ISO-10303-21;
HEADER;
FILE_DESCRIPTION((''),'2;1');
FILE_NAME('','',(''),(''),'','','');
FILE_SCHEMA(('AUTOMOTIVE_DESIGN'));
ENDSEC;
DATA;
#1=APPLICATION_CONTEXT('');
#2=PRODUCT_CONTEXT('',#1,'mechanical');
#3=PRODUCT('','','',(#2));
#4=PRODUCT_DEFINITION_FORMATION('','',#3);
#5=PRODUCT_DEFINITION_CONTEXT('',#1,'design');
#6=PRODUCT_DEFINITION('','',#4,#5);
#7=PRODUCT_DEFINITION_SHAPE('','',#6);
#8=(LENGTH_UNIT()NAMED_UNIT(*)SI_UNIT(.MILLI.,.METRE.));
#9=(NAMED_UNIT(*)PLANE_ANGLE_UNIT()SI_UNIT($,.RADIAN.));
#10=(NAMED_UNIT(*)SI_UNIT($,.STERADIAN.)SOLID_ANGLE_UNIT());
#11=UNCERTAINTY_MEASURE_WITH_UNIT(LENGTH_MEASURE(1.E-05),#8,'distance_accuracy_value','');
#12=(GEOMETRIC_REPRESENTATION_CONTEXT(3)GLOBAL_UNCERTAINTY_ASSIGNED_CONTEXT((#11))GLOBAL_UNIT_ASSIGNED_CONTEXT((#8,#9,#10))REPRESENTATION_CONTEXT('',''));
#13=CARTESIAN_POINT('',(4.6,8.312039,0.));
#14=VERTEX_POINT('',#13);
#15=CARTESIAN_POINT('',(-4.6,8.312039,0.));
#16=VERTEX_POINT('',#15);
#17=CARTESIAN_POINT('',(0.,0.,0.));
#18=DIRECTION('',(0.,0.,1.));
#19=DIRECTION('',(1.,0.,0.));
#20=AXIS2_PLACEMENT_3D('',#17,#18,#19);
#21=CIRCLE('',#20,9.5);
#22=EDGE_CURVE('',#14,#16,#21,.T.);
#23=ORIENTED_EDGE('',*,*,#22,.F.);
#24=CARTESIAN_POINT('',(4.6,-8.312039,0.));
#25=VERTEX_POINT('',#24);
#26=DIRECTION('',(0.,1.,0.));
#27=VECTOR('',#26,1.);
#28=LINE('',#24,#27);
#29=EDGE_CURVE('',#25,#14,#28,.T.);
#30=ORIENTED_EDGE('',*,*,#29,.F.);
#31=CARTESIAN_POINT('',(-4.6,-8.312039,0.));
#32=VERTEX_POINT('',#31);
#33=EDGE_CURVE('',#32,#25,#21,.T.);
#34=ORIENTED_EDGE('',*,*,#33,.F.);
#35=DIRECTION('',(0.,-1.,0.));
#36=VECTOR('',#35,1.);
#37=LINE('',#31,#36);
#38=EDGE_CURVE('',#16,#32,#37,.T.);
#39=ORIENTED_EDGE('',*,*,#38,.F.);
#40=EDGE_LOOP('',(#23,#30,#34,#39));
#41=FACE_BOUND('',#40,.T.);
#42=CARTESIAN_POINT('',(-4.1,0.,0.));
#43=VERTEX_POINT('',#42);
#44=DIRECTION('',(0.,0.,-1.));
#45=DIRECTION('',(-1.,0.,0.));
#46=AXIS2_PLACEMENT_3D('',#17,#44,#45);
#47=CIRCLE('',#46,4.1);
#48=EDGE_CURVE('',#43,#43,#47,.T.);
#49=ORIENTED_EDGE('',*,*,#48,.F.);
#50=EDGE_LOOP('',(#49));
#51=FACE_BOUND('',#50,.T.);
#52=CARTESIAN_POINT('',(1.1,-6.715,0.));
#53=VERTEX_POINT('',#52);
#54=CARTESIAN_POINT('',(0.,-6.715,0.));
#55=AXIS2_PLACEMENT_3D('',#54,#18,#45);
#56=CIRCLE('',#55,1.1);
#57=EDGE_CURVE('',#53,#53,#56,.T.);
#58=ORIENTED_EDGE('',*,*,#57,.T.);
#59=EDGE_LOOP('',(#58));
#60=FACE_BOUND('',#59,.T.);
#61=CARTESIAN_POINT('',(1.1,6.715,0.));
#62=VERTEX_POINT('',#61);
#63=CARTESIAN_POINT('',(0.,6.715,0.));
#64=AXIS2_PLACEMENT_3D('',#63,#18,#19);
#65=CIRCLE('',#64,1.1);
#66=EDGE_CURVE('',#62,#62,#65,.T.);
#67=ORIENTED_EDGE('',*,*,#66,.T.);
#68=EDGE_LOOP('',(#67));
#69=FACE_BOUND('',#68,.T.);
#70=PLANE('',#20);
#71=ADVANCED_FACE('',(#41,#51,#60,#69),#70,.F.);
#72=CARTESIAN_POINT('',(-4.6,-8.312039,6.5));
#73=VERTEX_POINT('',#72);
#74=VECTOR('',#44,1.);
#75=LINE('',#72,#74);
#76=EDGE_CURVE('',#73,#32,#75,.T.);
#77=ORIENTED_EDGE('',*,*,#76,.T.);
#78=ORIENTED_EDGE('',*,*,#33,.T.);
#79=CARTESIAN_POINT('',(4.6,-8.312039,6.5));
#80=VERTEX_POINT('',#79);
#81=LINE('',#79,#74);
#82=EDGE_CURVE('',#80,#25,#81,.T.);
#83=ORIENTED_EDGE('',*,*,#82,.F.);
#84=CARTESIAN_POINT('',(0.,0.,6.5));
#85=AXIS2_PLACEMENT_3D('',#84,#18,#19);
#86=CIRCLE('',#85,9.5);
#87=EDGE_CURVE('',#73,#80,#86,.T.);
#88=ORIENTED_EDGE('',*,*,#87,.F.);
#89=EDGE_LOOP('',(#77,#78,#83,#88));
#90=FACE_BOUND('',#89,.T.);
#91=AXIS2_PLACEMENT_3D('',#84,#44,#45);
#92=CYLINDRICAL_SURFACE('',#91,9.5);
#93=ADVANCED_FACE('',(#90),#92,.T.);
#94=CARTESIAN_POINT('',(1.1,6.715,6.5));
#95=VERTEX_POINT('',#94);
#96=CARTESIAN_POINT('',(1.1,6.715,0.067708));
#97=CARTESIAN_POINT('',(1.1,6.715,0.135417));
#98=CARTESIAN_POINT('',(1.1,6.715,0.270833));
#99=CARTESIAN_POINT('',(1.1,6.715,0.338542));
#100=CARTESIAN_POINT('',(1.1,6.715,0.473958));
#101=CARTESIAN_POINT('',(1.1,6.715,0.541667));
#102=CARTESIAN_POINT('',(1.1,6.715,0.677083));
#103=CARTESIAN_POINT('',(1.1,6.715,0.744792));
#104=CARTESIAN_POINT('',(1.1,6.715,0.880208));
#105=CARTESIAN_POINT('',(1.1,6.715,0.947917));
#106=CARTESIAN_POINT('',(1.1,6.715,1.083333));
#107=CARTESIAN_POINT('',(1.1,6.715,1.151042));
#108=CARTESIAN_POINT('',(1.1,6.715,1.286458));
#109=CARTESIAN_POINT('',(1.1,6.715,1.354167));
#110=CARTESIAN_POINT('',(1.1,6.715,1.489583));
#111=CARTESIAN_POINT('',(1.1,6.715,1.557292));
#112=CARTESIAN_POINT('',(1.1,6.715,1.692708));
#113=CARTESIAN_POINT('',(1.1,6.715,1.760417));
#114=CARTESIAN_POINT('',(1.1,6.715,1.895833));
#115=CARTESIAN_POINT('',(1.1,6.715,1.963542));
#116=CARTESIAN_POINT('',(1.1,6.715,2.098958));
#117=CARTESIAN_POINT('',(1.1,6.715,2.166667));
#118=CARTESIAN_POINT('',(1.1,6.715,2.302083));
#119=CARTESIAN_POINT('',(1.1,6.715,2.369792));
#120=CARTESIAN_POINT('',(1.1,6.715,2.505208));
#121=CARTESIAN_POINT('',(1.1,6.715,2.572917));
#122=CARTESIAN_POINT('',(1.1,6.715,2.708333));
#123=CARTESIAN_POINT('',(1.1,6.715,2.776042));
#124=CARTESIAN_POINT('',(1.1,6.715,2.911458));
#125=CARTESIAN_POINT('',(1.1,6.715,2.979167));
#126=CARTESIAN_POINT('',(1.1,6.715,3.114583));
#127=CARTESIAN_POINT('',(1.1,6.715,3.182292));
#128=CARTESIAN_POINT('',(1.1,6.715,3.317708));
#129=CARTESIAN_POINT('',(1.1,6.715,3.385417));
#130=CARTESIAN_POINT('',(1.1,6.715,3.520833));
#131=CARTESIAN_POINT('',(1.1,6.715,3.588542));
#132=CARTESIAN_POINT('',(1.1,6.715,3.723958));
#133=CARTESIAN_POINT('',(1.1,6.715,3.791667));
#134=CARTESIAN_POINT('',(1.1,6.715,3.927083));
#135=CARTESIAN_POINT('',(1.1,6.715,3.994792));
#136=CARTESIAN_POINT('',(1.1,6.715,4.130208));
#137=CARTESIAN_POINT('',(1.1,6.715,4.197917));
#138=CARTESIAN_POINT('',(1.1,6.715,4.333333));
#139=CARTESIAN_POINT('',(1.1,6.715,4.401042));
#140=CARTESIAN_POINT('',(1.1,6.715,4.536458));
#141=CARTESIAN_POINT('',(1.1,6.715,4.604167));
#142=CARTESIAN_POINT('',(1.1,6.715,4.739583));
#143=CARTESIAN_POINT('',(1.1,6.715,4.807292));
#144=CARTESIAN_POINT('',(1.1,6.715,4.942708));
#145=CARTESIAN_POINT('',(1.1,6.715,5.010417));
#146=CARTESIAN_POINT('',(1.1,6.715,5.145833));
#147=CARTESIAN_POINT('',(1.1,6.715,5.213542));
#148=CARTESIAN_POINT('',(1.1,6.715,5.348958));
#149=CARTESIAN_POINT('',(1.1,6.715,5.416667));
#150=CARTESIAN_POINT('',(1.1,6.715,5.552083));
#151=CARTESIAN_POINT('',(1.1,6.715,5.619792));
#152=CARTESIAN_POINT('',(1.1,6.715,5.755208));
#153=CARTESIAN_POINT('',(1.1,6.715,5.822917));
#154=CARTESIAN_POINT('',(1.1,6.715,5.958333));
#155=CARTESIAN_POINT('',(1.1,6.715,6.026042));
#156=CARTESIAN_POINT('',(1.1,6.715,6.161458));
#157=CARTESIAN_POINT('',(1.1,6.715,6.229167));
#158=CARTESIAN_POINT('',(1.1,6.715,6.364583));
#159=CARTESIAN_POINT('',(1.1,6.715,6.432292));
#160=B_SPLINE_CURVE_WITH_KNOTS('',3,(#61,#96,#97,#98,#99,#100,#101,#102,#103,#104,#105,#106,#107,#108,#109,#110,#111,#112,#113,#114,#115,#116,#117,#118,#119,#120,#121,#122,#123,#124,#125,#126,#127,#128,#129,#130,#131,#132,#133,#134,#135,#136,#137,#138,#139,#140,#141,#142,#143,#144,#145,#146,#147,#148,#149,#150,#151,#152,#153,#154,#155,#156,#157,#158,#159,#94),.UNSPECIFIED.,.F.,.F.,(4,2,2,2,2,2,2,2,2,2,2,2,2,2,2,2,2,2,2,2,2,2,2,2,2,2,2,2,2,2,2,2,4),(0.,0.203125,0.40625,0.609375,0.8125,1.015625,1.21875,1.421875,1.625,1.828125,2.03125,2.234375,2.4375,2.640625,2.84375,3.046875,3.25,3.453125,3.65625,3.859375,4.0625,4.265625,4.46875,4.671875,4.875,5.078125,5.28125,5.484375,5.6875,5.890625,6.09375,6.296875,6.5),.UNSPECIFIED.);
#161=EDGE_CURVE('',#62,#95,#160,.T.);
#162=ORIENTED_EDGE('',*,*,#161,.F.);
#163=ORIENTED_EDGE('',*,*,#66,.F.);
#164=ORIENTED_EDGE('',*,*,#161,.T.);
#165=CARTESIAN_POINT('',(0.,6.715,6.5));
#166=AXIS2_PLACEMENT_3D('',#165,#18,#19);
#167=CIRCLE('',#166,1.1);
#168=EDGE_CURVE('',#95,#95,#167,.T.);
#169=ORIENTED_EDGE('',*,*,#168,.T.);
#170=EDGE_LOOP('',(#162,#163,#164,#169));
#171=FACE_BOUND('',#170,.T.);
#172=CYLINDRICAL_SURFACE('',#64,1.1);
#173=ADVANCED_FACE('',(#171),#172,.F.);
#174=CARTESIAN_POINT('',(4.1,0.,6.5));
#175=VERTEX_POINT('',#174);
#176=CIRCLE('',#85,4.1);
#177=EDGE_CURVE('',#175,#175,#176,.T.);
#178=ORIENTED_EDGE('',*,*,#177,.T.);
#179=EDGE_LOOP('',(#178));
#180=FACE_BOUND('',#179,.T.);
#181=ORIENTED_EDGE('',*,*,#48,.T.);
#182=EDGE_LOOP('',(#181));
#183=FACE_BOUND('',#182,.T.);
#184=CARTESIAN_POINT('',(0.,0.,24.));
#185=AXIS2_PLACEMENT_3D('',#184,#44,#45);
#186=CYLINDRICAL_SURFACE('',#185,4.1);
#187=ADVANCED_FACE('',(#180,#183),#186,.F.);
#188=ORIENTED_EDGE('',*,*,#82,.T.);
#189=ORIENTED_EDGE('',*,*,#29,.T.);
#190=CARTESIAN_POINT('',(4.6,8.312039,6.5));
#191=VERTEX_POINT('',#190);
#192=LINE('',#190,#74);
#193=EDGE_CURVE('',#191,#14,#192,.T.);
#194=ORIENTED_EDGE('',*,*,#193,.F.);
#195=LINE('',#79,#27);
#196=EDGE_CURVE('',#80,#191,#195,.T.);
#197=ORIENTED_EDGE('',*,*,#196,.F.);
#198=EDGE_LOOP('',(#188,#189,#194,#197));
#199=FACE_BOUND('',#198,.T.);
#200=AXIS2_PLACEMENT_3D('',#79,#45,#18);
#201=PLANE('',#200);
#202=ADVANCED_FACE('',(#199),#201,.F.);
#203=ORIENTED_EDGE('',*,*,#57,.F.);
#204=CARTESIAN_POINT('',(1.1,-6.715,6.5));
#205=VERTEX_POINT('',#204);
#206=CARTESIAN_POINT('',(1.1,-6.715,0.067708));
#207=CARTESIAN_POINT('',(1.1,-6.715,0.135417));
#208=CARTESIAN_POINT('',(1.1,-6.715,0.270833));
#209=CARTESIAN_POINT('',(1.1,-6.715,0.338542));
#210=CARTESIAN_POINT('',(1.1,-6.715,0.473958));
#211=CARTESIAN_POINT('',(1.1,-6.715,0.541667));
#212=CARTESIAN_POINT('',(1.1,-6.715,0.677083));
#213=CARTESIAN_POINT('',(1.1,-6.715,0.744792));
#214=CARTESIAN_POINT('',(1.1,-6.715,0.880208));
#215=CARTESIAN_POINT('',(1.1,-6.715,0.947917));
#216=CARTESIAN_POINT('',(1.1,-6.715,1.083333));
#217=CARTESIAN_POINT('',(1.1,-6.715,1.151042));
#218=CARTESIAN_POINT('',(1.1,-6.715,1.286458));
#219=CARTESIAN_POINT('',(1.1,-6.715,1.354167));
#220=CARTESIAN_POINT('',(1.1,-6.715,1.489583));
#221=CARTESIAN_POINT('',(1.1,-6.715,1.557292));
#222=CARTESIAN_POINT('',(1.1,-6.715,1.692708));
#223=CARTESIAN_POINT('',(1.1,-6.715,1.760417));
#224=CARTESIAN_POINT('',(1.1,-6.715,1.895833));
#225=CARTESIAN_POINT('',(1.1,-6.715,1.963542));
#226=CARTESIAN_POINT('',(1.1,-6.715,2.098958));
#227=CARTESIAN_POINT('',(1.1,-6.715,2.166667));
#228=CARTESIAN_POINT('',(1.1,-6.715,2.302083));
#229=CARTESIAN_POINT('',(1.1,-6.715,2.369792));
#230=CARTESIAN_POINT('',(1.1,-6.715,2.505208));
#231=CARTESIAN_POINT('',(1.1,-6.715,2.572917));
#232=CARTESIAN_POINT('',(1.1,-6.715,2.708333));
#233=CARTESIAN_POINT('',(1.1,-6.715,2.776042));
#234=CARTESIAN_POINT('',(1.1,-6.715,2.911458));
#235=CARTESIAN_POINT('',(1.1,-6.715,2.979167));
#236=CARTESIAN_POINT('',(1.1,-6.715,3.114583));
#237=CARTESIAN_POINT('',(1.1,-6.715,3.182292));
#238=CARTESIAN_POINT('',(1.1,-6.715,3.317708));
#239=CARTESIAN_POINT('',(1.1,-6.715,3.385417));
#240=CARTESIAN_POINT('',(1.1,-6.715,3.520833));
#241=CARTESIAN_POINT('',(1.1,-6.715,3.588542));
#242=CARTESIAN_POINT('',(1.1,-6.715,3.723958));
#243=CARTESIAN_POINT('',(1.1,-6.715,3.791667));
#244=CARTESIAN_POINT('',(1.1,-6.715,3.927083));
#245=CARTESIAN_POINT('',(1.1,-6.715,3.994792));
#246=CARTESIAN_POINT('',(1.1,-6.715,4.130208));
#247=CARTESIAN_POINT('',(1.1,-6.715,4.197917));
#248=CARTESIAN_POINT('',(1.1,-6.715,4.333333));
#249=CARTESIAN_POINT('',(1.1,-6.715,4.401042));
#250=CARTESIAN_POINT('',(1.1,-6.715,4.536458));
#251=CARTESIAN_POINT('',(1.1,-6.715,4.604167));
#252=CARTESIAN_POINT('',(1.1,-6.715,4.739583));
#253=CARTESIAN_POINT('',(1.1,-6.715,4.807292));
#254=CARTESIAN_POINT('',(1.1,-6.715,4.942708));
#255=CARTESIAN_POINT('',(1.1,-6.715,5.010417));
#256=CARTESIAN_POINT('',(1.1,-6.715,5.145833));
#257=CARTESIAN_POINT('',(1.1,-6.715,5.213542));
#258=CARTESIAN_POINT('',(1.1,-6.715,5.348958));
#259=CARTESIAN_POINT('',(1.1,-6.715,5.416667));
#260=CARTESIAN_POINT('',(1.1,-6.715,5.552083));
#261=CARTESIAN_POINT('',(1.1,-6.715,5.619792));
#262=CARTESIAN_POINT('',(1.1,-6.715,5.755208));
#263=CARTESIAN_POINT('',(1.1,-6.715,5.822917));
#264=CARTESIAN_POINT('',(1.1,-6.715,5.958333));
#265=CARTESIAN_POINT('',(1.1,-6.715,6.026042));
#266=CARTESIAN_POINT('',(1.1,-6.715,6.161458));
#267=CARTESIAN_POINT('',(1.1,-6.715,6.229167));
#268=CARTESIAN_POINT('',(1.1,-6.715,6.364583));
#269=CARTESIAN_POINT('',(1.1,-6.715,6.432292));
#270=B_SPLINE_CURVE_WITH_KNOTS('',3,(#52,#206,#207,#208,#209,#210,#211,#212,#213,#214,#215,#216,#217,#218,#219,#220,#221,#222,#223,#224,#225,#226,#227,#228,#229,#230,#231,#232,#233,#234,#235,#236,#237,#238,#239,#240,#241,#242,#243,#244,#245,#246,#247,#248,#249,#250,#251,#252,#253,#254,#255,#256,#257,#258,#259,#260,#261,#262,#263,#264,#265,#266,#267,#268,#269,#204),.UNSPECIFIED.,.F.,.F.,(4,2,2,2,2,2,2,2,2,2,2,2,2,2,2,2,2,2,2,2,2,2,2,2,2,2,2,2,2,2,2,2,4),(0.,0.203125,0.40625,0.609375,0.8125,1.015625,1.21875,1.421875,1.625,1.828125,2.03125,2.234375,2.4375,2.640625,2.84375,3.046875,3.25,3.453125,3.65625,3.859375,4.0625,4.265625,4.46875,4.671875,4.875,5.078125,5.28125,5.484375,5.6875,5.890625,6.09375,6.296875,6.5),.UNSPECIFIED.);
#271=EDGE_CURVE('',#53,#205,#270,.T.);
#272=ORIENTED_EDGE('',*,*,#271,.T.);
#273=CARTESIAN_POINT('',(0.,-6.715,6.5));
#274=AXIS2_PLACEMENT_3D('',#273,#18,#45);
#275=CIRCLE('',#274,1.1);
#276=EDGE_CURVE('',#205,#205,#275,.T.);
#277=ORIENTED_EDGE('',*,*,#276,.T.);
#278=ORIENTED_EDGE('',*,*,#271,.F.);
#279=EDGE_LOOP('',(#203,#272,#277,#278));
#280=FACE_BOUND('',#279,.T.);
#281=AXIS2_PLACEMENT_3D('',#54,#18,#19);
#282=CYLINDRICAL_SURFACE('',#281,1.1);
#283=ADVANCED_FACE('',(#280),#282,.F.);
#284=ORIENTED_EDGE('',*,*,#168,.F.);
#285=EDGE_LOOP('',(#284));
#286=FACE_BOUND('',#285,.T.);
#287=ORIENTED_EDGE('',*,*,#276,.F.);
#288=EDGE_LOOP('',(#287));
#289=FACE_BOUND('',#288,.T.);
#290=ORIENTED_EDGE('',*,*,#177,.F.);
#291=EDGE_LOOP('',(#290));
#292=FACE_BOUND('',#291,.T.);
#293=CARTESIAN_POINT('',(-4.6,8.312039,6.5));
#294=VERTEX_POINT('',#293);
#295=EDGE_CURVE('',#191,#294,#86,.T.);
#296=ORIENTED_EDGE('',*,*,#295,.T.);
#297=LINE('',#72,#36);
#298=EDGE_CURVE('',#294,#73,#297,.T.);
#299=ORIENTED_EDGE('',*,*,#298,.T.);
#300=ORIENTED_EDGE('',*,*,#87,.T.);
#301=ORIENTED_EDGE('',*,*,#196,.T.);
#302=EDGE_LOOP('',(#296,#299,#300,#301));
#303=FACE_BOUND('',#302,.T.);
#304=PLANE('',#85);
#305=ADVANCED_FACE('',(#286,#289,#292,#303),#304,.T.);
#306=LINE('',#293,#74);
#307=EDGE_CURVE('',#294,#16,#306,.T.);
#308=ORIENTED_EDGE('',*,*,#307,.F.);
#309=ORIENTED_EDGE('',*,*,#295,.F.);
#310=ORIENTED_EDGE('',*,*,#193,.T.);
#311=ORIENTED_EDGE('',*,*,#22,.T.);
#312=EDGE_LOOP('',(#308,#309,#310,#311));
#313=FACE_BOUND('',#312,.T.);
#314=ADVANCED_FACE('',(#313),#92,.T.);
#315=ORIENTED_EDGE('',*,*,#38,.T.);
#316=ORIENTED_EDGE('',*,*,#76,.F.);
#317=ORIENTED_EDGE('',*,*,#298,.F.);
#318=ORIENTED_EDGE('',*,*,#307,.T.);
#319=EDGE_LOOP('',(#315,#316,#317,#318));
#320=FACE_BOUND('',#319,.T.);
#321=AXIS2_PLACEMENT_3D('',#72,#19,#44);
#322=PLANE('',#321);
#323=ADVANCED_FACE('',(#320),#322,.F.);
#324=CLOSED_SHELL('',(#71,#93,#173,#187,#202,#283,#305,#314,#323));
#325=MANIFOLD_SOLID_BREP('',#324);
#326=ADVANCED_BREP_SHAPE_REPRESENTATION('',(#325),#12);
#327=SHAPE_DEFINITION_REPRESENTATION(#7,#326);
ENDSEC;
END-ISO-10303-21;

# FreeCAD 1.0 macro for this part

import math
import FreeCAD as App
import Part
import Sketcher

V = App.Vector

doc = App.newDocument("Part")
body = doc.addObject("PartDesign::Body", "Body")

sketch1 = body.newObject("Sketcher::SketchObject", "Sketch")
sketch1.AttachmentSupport = (doc.getObject("XY_Plane"), [""])
sketch1.MapMode = "FlatFace"
sketch1.addGeometry([
    Part.LineSegment(V(-5, 8, 0), V(-5, -8, 0)),
    Part.ArcOfCircle(Part.Circle(V(0, 0, 0), V(0, 0, 1), 10), math.radians(-119), math.radians(-61)),
    Part.LineSegment(V(5, -8, 0), V(5, 8, 0)),
    Part.ArcOfCircle(Part.Circle(V(0, 0, 0), V(0, 0, 1), 10), math.radians(61), math.radians(119)),
], False)
sketch1.addConstraint([
    Sketcher.Constraint("Coincident", 0, 2, 1, 1),
    Sketcher.Constraint("Coincident", 1, 2, 2, 1),
    Sketcher.Constraint("Coincident", 2, 2, 3, 1),
    Sketcher.Constraint("Coincident", 3, 2, 0, 1),
    Sketcher.Constraint("Vertical", 0),
    Sketcher.Constraint("Vertical", 2),
    Sketcher.Constraint("Coincident", 1, 3, -1, 1),
    Sketcher.Constraint("Coincident", 3, 3, -1, 1),
    Sketcher.Constraint("Equal", 1, 3),
    Sketcher.Constraint("Horizontal", 0, 2, 1, 2),
    Sketcher.Constraint("Radius", 1, 9.5),
    Sketcher.Constraint("DistanceX", 0, 2, -1, 1, 4.6),
])
pad1 = body.newObject("PartDesign::Pad", "Pad")
pad1.Profile = sketch1
pad1.Length = 6.5

sketch2 = body.newObject("Sketcher::SketchObject", "Sketch001")
sketch2.AttachmentSupport = (doc.getObject("XY_Plane"), [""])
sketch2.MapMode = "FlatFace"
sketch2.AttachmentOffset = App.Placement(V(0, 0, 6.5), App.Rotation())
sketch2.addGeometry([
    Part.Circle(V(0, 6.7, 0), V(0, 0, 1), 1.1),
    Part.Circle(V(0, -6.7, 0), V(0, 0, 1), 1.1),
], False)
sketch2.addConstraint([
    Sketcher.Constraint("Equal", 0, 1),
    Sketcher.Constraint("Symmetric", 0, 3, 1, 3, -1, 1),
    Sketcher.Constraint("PointOnObject", 0, 3, -2),
    Sketcher.Constraint("Diameter", 0, 2.2),
    Sketcher.Constraint("DistanceY", 1, 3, 0, 3, 13.43),
])
pocket1 = body.newObject("PartDesign::Pocket", "Pocket")
pocket1.Profile = sketch2
pocket1.Type = "ThroughAll"

sketch3 = body.newObject("Sketcher::SketchObject", "Sketch002")
sketch3.AttachmentSupport = (doc.getObject("XY_Plane"), [""])
sketch3.MapMode = "FlatFace"
sketch3.addGeometry(Part.Circle(V(0, 0, 0), V(0, 0, 1), 4.1), False)
sketch3.addConstraint([
    Sketcher.Constraint("Coincident", 0, 3, -1, 1),
    Sketcher.Constraint("Diameter", 0, 8.2),
])
pocket2 = body.newObject("PartDesign::Pocket", "Pocket001")
pocket2.Profile = sketch3
pocket2.Length = 24
pocket2.Reversed = True

doc.recompute()
